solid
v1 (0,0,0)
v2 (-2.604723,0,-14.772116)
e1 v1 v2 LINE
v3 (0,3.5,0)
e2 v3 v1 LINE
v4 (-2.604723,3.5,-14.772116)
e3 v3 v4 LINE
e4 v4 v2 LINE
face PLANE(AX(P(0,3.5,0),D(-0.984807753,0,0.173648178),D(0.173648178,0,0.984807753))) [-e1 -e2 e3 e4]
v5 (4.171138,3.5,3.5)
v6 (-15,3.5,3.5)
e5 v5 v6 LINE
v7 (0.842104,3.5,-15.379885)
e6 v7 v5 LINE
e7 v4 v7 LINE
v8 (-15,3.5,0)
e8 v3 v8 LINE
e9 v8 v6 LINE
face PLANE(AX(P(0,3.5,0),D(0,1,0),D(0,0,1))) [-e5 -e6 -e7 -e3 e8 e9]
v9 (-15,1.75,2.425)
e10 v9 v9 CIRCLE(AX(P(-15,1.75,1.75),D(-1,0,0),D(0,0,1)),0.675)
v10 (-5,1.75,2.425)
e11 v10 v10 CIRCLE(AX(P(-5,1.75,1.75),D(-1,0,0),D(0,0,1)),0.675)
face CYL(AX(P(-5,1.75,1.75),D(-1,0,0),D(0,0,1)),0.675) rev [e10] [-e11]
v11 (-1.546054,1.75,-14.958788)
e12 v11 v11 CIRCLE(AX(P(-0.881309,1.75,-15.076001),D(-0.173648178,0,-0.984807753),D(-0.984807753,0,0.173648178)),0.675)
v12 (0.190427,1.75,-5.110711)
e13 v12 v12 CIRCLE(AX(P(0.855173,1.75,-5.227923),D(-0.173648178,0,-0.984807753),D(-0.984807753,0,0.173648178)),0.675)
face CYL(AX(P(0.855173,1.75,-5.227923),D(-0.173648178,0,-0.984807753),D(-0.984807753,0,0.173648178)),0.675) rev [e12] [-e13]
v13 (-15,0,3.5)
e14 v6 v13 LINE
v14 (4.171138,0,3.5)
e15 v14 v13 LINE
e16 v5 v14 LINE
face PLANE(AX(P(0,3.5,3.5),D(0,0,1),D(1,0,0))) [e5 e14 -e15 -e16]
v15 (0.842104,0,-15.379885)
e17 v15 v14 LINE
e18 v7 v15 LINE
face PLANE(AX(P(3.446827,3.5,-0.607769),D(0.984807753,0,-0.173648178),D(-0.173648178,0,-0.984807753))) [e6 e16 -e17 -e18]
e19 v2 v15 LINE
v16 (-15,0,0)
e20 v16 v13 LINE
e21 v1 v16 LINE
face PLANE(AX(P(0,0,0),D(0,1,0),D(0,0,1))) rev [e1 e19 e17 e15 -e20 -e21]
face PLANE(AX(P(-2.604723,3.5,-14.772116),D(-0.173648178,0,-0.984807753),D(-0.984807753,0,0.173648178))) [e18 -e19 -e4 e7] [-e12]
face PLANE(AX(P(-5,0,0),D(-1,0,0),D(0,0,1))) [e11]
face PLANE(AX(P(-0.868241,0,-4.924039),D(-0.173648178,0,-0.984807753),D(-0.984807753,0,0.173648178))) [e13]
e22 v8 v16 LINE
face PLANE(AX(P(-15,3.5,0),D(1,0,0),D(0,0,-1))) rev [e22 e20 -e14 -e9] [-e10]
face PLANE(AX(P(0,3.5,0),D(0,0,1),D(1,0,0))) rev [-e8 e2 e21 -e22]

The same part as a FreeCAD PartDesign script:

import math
import FreeCAD as App
import Part
import Sketcher
Q = App.Units.Quantity

doc = App.newDocument("Part")
body = doc.addObject("PartDesign::Body", "Body")

sketch1 = body.newObject("Sketcher::SketchObject", "Sketch")
sketch1.AttachmentSupport = (doc.getObject("XZ_Plane"), [""])
sketch1.MapMode = "FlatFace"
sketch1.addGeometry([
    Part.LineSegment(App.Vector(0, 0, 0), App.Vector(-15, 0, 0)),
    Part.LineSegment(App.Vector(-15, 0, 0), App.Vector(-15, 3.5, 0)),
    Part.LineSegment(App.Vector(-15, 3.5, 0), App.Vector(4.2, 3.5, 0)),
    Part.LineSegment(App.Vector(4.2, 3.5, 0), App.Vector(0.8, -15.4, 0)),
    Part.LineSegment(App.Vector(0.8, -15.4, 0), App.Vector(-2.6, -14.8, 0)),
    Part.LineSegment(App.Vector(-2.6, -14.8, 0), App.Vector(0, 0, 0)),
], False)
sketch1.addConstraint([
    Sketcher.Constraint("Coincident", 0, 2, 1, 1),
    Sketcher.Constraint("Coincident", 1, 2, 2, 1),
    Sketcher.Constraint("Coincident", 2, 2, 3, 1),
    Sketcher.Constraint("Coincident", 3, 2, 4, 1),
    Sketcher.Constraint("Coincident", 4, 2, 5, 1),
    Sketcher.Constraint("Coincident", 5, 2, 0, 1),
    Sketcher.Constraint("Horizontal", 0),
    Sketcher.Constraint("Vertical", 1),
    Sketcher.Constraint("Horizontal", 2),
    Sketcher.Constraint("Coincident", 5, 2, -1, 1),
    Sketcher.Constraint("Perpendicular", 3, 4),
    Sketcher.Constraint("Perpendicular", 4, 5),
    Sketcher.Constraint("DistanceX", 0, 2, 0, 1, Q("15 mm")),
    Sketcher.Constraint("Angle", 3, Q("-100 deg")),
    Sketcher.Constraint("Distance", 5, Q("15 mm")),
    Sketcher.Constraint("DistanceY", 1, 1, 1, 2, Q("3.5 mm")),
    Sketcher.Constraint("Distance", 4, Q("3.5 mm")),
])
pad1 = body.newObject("PartDesign::Pad", "Pad")
pad1.Profile = sketch1
pad1.Length = 3.5
pad1.Reversed = True

sketch2 = body.newObject("Sketcher::SketchObject", "Sketch001")
sketch2.AttachmentSupport = (doc.getObject("YZ_Plane"), [""])
sketch2.MapMode = "FlatFace"
sketch2.AttachmentOffset = App.Placement(App.Vector(0, 0, -15), App.Rotation())
sketch2.addGeometry([
    Part.ArcOfCircle(Part.Circle(App.Vector(1.7, 1.7, 0), App.Vector(0, 0, 1), 0.7), math.radians(0), math.radians(90)),
    Part.ArcOfCircle(Part.Circle(App.Vector(1.7, 1.8, 0), App.Vector(0, 0, 1), 0.7), math.radians(-90), math.radians(0)),
    Part.ArcOfCircle(Part.Circle(App.Vector(1.8, 1.8, 0), App.Vector(0, 0, 1), 0.7), math.radians(-180), math.radians(-90)),
    Part.ArcOfCircle(Part.Circle(App.Vector(1.8, 1.7, 0), App.Vector(0, 0, 1), 0.7), math.radians(90), math.radians(180)),
], False)
sketch2.addConstraint([
    Sketcher.Constraint("Tangent", 0, 1, 1, 2),
    Sketcher.Constraint("Tangent", 1, 1, 2, 2),
    Sketcher.Constraint("Tangent", 2, 1, 3, 2),
    Sketcher.Constraint("Tangent", 3, 1, 0, 2),
    Sketcher.Constraint("Equal", 0, 1),
    Sketcher.Constraint("Horizontal", 3, 3, 0, 1),
    Sketcher.Constraint("Horizontal", 0, 1, 2, 1),
    Sketcher.Constraint("Vertical", 3, 3, 1, 1),
    Sketcher.Constraint("Vertical", 1, 1, 3, 1),
    Sketcher.Constraint("Radius", 0, Q("0.675 mm")),
    Sketcher.Constraint("DistanceX", -1, 1, 0, 3, Q("1.75 mm")),
    Sketcher.Constraint("DistanceY", -1, 1, 0, 3, Q("1.75 mm")),
])
pocket1 = body.newObject("PartDesign::Pocket", "Pocket")
pocket1.Profile = sketch2
pocket1.Length = 10
pocket1.Reversed = True

sketch3 = body.newObject("Sketcher::SketchObject", "Sketch002")
sketch3.Placement = App.Placement(App.Vector(-2.604723, 0, -14.772116), App.Rotation(App.Vector(-0.984807753, 0, 0.173648178), App.Vector(0, 1, 0), App.Vector(-0.173648178, 0, -0.984807753), "ZXY"))
sketch3.addGeometry([
    Part.ArcOfCircle(Part.Circle(App.Vector(-1.8, 1.7, 0), App.Vector(0, 0, 1), 0.7), math.radians(0), math.radians(90)),
    Part.ArcOfCircle(Part.Circle(App.Vector(-1.7, 1.7, 0), App.Vector(0, 0, 1), 0.7), math.radians(90), math.radians(180)),
    Part.ArcOfCircle(Part.Circle(App.Vector(-1.7, 1.8, 0), App.Vector(0, 0, 1), 0.7), math.radians(-180), math.radians(-90)),
    Part.ArcOfCircle(Part.Circle(App.Vector(-1.8, 1.8, 0), App.Vector(0, 0, 1), 0.7), math.radians(-90), math.radians(0)),
], False)
sketch3.addConstraint([
    Sketcher.Constraint("Tangent", 0, 2, 1, 1),
    Sketcher.Constraint("Tangent", 1, 2, 2, 1),
    Sketcher.Constraint("Tangent", 2, 2, 3, 1),
    Sketcher.Constraint("Tangent", 3, 2, 0, 1),
    Sketcher.Constraint("Equal", 0, 1),
    Sketcher.Constraint("Horizontal", 3, 3, 1, 2),
    Sketcher.Constraint("Horizontal", 1, 2, 3, 2),
    Sketcher.Constraint("Vertical", 3, 3, 0, 2),
    Sketcher.Constraint("Vertical", 0, 2, 2, 2),
    Sketcher.Constraint("Radius", 0, Q("0.675 mm")),
    Sketcher.Constraint("DistanceX", 0, 3, -1, 1, Q("1.75 mm")),
    Sketcher.Constraint("DistanceY", -1, 1, 0, 3, Q("1.75 mm")),
])
pocket2 = body.newObject("PartDesign::Pocket", "Pocket001")
pocket2.Profile = sketch3
pocket2.Length = 10

doc.recompute()
